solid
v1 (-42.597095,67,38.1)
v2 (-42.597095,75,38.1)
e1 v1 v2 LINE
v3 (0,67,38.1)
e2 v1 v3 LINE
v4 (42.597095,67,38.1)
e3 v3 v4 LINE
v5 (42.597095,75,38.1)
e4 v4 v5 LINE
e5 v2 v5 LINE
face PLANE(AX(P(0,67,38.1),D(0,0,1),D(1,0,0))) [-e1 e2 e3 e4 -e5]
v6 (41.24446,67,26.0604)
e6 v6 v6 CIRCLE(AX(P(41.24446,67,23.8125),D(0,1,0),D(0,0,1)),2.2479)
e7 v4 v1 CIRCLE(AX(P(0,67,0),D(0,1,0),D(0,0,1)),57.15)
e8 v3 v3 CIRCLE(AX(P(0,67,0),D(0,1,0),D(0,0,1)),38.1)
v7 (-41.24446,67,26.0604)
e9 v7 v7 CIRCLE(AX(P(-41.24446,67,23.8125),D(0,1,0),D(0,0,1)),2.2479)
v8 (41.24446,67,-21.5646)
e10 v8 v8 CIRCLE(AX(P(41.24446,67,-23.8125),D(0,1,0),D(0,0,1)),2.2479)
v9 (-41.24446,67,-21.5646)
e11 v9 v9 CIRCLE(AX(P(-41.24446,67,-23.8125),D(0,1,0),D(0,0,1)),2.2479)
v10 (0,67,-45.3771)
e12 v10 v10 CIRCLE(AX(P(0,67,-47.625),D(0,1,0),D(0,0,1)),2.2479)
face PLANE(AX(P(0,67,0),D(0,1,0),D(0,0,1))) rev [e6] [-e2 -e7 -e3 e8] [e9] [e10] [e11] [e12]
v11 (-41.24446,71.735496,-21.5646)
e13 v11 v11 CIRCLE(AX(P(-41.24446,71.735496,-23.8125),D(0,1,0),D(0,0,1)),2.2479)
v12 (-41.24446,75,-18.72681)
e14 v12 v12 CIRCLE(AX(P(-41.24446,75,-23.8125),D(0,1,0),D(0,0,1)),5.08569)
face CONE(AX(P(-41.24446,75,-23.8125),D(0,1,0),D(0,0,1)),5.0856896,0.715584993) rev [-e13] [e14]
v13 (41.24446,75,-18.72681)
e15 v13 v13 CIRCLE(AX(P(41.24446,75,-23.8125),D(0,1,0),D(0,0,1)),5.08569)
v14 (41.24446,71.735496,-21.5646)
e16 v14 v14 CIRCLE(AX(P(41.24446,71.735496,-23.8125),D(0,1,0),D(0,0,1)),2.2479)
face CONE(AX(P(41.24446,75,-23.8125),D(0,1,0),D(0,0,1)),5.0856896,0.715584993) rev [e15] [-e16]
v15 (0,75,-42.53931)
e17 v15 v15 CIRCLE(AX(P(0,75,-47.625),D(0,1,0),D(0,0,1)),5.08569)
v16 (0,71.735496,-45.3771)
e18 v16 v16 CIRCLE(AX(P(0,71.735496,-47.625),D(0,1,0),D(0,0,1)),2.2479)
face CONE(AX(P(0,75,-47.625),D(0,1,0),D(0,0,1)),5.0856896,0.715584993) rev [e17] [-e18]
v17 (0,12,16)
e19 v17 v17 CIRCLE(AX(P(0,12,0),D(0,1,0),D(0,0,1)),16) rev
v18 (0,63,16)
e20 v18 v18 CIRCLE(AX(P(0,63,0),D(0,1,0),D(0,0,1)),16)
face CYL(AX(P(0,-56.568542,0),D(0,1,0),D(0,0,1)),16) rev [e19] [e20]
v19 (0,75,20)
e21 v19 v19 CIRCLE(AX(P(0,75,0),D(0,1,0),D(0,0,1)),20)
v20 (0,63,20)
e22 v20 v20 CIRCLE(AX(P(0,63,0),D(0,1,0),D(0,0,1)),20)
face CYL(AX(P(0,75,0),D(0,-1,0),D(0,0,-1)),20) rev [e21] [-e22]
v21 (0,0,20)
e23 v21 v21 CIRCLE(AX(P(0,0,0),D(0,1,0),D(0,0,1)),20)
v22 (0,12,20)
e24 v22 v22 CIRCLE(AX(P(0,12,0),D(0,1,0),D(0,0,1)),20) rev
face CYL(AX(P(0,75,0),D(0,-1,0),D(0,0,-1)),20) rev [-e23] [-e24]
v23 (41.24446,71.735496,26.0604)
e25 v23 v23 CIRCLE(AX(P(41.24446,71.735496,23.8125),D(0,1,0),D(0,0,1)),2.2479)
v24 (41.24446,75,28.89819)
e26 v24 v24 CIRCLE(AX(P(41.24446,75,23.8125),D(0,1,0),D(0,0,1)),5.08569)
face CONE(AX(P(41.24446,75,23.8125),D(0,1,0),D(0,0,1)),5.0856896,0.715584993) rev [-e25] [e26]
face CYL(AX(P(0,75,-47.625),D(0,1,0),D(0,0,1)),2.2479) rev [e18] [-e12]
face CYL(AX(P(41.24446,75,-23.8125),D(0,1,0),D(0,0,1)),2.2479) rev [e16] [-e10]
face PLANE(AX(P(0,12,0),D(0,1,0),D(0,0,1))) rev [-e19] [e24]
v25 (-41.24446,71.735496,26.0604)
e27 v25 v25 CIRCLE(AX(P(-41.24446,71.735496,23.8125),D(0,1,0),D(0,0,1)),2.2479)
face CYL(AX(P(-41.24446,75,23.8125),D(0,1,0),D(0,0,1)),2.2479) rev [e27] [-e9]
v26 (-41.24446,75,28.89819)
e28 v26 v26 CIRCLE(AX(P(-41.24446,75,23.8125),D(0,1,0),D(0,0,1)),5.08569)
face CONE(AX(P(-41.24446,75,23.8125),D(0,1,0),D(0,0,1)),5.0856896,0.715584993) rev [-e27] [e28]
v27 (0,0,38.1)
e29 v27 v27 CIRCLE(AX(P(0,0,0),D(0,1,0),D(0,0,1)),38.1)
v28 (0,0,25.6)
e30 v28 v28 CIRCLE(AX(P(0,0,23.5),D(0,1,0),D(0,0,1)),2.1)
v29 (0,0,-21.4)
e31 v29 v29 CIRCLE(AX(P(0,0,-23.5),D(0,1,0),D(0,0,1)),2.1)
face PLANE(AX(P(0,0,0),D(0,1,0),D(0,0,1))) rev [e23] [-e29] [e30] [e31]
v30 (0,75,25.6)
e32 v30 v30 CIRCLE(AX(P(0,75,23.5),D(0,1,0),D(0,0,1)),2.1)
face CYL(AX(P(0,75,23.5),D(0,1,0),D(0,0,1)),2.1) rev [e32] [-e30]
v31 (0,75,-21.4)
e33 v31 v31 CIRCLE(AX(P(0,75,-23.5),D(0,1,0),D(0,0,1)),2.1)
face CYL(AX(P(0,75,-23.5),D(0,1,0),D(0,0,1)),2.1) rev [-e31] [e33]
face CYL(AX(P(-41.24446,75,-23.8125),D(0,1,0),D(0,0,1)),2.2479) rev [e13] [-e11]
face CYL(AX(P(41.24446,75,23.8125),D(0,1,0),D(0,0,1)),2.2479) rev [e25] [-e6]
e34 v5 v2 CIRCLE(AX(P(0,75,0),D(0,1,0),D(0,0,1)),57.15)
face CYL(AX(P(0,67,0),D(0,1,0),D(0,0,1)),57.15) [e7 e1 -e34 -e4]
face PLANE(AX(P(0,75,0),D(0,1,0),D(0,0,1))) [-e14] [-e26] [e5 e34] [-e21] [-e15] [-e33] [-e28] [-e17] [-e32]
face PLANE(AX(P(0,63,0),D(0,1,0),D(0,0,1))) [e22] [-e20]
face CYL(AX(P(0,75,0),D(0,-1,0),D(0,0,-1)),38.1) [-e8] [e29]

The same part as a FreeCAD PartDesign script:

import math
import FreeCAD as App
import Part
import Sketcher

V = App.Vector
Q = App.Units.Quantity

doc = App.newDocument("Part")
body = doc.addObject("PartDesign::Body", "Body")

# Sketch on XZ plane
sketch1 = doc.addObject("Sketcher::SketchObject", "Sketch")
body.addObject(sketch1)
sketch1.AttachmentSupport = (doc.XZ_Plane, [""])
sketch1.MapMode = "FlatFace"
sketch1.addGeometry([
    Part.Circle(V(0, 0, 0), V(0, 0, 1), 38),
    Part.Circle(V(0, 0, 0), V(0, 0, 1), 20),
], False)
sketch1.addConstraint([
    Sketcher.Constraint("Coincident", 0, 3, -1, 1),
    Sketcher.Constraint("Coincident", 1, 3, -1, 1),
    Sketcher.Constraint("Diameter", 1, Q("40 mm")),
    Sketcher.Constraint("Diameter", 0, Q("76.2 mm")),
])
pad1 = doc.addObject("PartDesign::Pad", "Pad")
body.addObject(pad1)
pad1.Profile = sketch1
pad1.Length = 75
pad1.Reversed = True

# Sketch on XZ plane
sketch2 = doc.addObject("Sketcher::SketchObject", "Sketch001")
body.addObject(sketch2)
sketch2.AttachmentSupport = (doc.XZ_Plane, [""])
sketch2.MapMode = "FlatFace"
sketch2.AttachmentOffset = App.Placement(V(0, 0, -67), App.Rotation())
sketch2.addGeometry([
    Part.ArcOfCircle(Part.Circle(V(0, 0, 0), V(0, 0, 1), 57), math.radians(0), math.radians(42)),
    Part.ArcOfCircle(Part.Circle(V(0, 0, 0), V(0, 0, 1), 57), math.radians(138), math.radians(360)),
    Part.LineSegment(V(-43, 38, 0), V(43, 38, 0)),
    Part.Circle(V(0, 0, 0), V(0, 0, 1), 20),
], False)
sketch2.addConstraint([
    Sketcher.Constraint("Tangent", 0, 1, 1, 2),
    Sketcher.Constraint("Coincident", 1, 1, 2, 1),
    Sketcher.Constraint("Coincident", 2, 2, 0, 2),
    Sketcher.Constraint("Horizontal", 2),
    Sketcher.Constraint("Coincident", 0, 3, -1, 1),
    Sketcher.Constraint("Coincident", 3, 3, -1, 1),
    Sketcher.Constraint("Equal", 0, 1),
    Sketcher.Constraint("PointOnObject", 0, 1, -1),
    Sketcher.Constraint("Diameter", 3, Q("40 mm")),
    Sketcher.Constraint("Radius", 0, Q("57.15 mm")),
    Sketcher.Constraint("DistanceY", -1, 1, 1, 1, Q("38.1 mm")),
])
pad2 = doc.addObject("PartDesign::Pad", "Pad001")
body.addObject(pad2)
pad2.Profile = sketch2
pad2.Length = 8
pad2.Reversed = True

# Sketch on XZ plane
sketch3 = doc.addObject("Sketcher::SketchObject", "Sketch002")
body.addObject(sketch3)
sketch3.AttachmentSupport = (doc.XZ_Plane, [""])
sketch3.MapMode = "FlatFace"
sketch3.AttachmentOffset = App.Placement(V(0, 0, -75), App.Rotation())
sketch3.addGeometry([
    Part.Circle(V(-41.2, 23.8, 0), V(0, 0, 1), 2.2),  # 0
    Part.Circle(V(-41.2, -23.8, 0), V(0, 0, 1), 2.2),  # 1
    Part.Circle(V(0, -47.6, 0), V(0, 0, 1), 2.2),  # 2
    Part.Circle(V(41.2, -23.8, 0), V(0, 0, 1), 2.2),  # 3
    Part.Circle(V(41.2, 23.8, 0), V(0, 0, 1), 2.2),  # 4
    Part.Circle(V(0, 47.6, 0), V(0, 0, 1), 2.2),  # 5
], False)
sketch3.addConstraint([
    Sketcher.Constraint("Equal", 0, 1),
    Sketcher.Constraint("Equal", 1, 2),
    Sketcher.Constraint("Equal", 2, 3),
    Sketcher.Constraint("Equal", 3, 4),
    Sketcher.Constraint("Equal", 4, 5),
    Sketcher.Constraint("Symmetric", 0, 3, 3, 3, -1, 1),
    Sketcher.Constraint("Symmetric", 1, 3, 4, 3, -1, 1),
    Sketcher.Constraint("Symmetric", 2, 3, 5, 3, -1, 1),
    Sketcher.Constraint("Symmetric", 1, 3, 3, 3, -2),
    Sketcher.Constraint("PointOnObject", 2, 3, -2),
    Sketcher.Constraint("Diameter", 0, Q("4.4958 mm")),
    Sketcher.Constraint("DistanceY", 2, 3, 5, 3, Q("95.25 mm")),
    Sketcher.Constraint("DistanceY", 1, 3, 0, 3, Q("47.625 mm")),
    Sketcher.Constraint("DistanceX", 0, 3, -1, 1, Q("41.24446 mm")),
])
doc.recompute()
hole = doc.addObject("PartDesign::Hole", "Hole")
body.addObject(hole)
hole.Profile = sketch3
hole.ThreadType = "None"
hole.Diameter = 4.4958
hole.DepthType = "ThroughAll"
hole.HoleCutType = "Countersink"
hole.HoleCutDiameter = 10.171379
hole.HoleCutCountersinkAngle = 82
hole.Reversed = True

# Sketch on XZ plane
sketch4 = doc.addObject("Sketcher::SketchObject", "Sketch003")
body.addObject(sketch4)
sketch4.AttachmentSupport = (doc.XZ_Plane, [""])
sketch4.MapMode = "FlatFace"
sketch4.AttachmentOffset = App.Placement(V(0, 0, -12), App.Rotation())
sketch4.addGeometry([
    Part.Circle(V(0, 0, 0), V(0, 0, 1), 20),
    Part.Circle(V(0, 0, 0), V(0, 0, 1), 16),
], False)
sketch4.addConstraint([
    Sketcher.Constraint("Coincident", 0, 3, -1, 1),
    Sketcher.Constraint("Coincident", 1, 3, -1, 1),
    Sketcher.Constraint("Diameter", 0, Q("40 mm")),
    Sketcher.Constraint("Diameter", 1, Q("32 mm")),
])
pad3 = doc.addObject("PartDesign::Pad", "Pad002")
body.addObject(pad3)
pad3.Profile = sketch4
pad3.Length = 51
pad3.Reversed = True

# Sketch on XZ plane
sketch5 = doc.addObject("Sketcher::SketchObject", "Sketch004")
body.addObject(sketch5)
sketch5.AttachmentSupport = (doc.XZ_Plane, [""])
sketch5.MapMode = "FlatFace"
sketch5.AttachmentOffset = App.Placement(V(0, 0, -75), App.Rotation())
sketch5.addGeometry([
    Part.Circle(V(0, -23.5, 0), V(0, 0, 1), 2.1),
    Part.Circle(V(0, 23.5, 0), V(0, 0, 1), 2.1),
], False)
sketch5.addConstraint([
    Sketcher.Constraint("Equal", 0, 1),
    Sketcher.Constraint("Symmetric", 0, 3, 1, 3, -1, 1),
    Sketcher.Constraint("PointOnObject", 0, 3, -2),
    Sketcher.Constraint("Diameter", 0, Q("4.2 mm")),
    Sketcher.Constraint("DistanceY", 0, 3, 1, 3, Q("47 mm")),
])
doc.recompute()
hole2 = doc.addObject("PartDesign::Hole", "Hole001")
body.addObject(hole2)
hole2.Profile = sketch5
hole2.ThreadType = "None"
hole2.Diameter = 4.2
hole2.DepthType = "ThroughAll"
hole2.Reversed = True

doc.recompute()
